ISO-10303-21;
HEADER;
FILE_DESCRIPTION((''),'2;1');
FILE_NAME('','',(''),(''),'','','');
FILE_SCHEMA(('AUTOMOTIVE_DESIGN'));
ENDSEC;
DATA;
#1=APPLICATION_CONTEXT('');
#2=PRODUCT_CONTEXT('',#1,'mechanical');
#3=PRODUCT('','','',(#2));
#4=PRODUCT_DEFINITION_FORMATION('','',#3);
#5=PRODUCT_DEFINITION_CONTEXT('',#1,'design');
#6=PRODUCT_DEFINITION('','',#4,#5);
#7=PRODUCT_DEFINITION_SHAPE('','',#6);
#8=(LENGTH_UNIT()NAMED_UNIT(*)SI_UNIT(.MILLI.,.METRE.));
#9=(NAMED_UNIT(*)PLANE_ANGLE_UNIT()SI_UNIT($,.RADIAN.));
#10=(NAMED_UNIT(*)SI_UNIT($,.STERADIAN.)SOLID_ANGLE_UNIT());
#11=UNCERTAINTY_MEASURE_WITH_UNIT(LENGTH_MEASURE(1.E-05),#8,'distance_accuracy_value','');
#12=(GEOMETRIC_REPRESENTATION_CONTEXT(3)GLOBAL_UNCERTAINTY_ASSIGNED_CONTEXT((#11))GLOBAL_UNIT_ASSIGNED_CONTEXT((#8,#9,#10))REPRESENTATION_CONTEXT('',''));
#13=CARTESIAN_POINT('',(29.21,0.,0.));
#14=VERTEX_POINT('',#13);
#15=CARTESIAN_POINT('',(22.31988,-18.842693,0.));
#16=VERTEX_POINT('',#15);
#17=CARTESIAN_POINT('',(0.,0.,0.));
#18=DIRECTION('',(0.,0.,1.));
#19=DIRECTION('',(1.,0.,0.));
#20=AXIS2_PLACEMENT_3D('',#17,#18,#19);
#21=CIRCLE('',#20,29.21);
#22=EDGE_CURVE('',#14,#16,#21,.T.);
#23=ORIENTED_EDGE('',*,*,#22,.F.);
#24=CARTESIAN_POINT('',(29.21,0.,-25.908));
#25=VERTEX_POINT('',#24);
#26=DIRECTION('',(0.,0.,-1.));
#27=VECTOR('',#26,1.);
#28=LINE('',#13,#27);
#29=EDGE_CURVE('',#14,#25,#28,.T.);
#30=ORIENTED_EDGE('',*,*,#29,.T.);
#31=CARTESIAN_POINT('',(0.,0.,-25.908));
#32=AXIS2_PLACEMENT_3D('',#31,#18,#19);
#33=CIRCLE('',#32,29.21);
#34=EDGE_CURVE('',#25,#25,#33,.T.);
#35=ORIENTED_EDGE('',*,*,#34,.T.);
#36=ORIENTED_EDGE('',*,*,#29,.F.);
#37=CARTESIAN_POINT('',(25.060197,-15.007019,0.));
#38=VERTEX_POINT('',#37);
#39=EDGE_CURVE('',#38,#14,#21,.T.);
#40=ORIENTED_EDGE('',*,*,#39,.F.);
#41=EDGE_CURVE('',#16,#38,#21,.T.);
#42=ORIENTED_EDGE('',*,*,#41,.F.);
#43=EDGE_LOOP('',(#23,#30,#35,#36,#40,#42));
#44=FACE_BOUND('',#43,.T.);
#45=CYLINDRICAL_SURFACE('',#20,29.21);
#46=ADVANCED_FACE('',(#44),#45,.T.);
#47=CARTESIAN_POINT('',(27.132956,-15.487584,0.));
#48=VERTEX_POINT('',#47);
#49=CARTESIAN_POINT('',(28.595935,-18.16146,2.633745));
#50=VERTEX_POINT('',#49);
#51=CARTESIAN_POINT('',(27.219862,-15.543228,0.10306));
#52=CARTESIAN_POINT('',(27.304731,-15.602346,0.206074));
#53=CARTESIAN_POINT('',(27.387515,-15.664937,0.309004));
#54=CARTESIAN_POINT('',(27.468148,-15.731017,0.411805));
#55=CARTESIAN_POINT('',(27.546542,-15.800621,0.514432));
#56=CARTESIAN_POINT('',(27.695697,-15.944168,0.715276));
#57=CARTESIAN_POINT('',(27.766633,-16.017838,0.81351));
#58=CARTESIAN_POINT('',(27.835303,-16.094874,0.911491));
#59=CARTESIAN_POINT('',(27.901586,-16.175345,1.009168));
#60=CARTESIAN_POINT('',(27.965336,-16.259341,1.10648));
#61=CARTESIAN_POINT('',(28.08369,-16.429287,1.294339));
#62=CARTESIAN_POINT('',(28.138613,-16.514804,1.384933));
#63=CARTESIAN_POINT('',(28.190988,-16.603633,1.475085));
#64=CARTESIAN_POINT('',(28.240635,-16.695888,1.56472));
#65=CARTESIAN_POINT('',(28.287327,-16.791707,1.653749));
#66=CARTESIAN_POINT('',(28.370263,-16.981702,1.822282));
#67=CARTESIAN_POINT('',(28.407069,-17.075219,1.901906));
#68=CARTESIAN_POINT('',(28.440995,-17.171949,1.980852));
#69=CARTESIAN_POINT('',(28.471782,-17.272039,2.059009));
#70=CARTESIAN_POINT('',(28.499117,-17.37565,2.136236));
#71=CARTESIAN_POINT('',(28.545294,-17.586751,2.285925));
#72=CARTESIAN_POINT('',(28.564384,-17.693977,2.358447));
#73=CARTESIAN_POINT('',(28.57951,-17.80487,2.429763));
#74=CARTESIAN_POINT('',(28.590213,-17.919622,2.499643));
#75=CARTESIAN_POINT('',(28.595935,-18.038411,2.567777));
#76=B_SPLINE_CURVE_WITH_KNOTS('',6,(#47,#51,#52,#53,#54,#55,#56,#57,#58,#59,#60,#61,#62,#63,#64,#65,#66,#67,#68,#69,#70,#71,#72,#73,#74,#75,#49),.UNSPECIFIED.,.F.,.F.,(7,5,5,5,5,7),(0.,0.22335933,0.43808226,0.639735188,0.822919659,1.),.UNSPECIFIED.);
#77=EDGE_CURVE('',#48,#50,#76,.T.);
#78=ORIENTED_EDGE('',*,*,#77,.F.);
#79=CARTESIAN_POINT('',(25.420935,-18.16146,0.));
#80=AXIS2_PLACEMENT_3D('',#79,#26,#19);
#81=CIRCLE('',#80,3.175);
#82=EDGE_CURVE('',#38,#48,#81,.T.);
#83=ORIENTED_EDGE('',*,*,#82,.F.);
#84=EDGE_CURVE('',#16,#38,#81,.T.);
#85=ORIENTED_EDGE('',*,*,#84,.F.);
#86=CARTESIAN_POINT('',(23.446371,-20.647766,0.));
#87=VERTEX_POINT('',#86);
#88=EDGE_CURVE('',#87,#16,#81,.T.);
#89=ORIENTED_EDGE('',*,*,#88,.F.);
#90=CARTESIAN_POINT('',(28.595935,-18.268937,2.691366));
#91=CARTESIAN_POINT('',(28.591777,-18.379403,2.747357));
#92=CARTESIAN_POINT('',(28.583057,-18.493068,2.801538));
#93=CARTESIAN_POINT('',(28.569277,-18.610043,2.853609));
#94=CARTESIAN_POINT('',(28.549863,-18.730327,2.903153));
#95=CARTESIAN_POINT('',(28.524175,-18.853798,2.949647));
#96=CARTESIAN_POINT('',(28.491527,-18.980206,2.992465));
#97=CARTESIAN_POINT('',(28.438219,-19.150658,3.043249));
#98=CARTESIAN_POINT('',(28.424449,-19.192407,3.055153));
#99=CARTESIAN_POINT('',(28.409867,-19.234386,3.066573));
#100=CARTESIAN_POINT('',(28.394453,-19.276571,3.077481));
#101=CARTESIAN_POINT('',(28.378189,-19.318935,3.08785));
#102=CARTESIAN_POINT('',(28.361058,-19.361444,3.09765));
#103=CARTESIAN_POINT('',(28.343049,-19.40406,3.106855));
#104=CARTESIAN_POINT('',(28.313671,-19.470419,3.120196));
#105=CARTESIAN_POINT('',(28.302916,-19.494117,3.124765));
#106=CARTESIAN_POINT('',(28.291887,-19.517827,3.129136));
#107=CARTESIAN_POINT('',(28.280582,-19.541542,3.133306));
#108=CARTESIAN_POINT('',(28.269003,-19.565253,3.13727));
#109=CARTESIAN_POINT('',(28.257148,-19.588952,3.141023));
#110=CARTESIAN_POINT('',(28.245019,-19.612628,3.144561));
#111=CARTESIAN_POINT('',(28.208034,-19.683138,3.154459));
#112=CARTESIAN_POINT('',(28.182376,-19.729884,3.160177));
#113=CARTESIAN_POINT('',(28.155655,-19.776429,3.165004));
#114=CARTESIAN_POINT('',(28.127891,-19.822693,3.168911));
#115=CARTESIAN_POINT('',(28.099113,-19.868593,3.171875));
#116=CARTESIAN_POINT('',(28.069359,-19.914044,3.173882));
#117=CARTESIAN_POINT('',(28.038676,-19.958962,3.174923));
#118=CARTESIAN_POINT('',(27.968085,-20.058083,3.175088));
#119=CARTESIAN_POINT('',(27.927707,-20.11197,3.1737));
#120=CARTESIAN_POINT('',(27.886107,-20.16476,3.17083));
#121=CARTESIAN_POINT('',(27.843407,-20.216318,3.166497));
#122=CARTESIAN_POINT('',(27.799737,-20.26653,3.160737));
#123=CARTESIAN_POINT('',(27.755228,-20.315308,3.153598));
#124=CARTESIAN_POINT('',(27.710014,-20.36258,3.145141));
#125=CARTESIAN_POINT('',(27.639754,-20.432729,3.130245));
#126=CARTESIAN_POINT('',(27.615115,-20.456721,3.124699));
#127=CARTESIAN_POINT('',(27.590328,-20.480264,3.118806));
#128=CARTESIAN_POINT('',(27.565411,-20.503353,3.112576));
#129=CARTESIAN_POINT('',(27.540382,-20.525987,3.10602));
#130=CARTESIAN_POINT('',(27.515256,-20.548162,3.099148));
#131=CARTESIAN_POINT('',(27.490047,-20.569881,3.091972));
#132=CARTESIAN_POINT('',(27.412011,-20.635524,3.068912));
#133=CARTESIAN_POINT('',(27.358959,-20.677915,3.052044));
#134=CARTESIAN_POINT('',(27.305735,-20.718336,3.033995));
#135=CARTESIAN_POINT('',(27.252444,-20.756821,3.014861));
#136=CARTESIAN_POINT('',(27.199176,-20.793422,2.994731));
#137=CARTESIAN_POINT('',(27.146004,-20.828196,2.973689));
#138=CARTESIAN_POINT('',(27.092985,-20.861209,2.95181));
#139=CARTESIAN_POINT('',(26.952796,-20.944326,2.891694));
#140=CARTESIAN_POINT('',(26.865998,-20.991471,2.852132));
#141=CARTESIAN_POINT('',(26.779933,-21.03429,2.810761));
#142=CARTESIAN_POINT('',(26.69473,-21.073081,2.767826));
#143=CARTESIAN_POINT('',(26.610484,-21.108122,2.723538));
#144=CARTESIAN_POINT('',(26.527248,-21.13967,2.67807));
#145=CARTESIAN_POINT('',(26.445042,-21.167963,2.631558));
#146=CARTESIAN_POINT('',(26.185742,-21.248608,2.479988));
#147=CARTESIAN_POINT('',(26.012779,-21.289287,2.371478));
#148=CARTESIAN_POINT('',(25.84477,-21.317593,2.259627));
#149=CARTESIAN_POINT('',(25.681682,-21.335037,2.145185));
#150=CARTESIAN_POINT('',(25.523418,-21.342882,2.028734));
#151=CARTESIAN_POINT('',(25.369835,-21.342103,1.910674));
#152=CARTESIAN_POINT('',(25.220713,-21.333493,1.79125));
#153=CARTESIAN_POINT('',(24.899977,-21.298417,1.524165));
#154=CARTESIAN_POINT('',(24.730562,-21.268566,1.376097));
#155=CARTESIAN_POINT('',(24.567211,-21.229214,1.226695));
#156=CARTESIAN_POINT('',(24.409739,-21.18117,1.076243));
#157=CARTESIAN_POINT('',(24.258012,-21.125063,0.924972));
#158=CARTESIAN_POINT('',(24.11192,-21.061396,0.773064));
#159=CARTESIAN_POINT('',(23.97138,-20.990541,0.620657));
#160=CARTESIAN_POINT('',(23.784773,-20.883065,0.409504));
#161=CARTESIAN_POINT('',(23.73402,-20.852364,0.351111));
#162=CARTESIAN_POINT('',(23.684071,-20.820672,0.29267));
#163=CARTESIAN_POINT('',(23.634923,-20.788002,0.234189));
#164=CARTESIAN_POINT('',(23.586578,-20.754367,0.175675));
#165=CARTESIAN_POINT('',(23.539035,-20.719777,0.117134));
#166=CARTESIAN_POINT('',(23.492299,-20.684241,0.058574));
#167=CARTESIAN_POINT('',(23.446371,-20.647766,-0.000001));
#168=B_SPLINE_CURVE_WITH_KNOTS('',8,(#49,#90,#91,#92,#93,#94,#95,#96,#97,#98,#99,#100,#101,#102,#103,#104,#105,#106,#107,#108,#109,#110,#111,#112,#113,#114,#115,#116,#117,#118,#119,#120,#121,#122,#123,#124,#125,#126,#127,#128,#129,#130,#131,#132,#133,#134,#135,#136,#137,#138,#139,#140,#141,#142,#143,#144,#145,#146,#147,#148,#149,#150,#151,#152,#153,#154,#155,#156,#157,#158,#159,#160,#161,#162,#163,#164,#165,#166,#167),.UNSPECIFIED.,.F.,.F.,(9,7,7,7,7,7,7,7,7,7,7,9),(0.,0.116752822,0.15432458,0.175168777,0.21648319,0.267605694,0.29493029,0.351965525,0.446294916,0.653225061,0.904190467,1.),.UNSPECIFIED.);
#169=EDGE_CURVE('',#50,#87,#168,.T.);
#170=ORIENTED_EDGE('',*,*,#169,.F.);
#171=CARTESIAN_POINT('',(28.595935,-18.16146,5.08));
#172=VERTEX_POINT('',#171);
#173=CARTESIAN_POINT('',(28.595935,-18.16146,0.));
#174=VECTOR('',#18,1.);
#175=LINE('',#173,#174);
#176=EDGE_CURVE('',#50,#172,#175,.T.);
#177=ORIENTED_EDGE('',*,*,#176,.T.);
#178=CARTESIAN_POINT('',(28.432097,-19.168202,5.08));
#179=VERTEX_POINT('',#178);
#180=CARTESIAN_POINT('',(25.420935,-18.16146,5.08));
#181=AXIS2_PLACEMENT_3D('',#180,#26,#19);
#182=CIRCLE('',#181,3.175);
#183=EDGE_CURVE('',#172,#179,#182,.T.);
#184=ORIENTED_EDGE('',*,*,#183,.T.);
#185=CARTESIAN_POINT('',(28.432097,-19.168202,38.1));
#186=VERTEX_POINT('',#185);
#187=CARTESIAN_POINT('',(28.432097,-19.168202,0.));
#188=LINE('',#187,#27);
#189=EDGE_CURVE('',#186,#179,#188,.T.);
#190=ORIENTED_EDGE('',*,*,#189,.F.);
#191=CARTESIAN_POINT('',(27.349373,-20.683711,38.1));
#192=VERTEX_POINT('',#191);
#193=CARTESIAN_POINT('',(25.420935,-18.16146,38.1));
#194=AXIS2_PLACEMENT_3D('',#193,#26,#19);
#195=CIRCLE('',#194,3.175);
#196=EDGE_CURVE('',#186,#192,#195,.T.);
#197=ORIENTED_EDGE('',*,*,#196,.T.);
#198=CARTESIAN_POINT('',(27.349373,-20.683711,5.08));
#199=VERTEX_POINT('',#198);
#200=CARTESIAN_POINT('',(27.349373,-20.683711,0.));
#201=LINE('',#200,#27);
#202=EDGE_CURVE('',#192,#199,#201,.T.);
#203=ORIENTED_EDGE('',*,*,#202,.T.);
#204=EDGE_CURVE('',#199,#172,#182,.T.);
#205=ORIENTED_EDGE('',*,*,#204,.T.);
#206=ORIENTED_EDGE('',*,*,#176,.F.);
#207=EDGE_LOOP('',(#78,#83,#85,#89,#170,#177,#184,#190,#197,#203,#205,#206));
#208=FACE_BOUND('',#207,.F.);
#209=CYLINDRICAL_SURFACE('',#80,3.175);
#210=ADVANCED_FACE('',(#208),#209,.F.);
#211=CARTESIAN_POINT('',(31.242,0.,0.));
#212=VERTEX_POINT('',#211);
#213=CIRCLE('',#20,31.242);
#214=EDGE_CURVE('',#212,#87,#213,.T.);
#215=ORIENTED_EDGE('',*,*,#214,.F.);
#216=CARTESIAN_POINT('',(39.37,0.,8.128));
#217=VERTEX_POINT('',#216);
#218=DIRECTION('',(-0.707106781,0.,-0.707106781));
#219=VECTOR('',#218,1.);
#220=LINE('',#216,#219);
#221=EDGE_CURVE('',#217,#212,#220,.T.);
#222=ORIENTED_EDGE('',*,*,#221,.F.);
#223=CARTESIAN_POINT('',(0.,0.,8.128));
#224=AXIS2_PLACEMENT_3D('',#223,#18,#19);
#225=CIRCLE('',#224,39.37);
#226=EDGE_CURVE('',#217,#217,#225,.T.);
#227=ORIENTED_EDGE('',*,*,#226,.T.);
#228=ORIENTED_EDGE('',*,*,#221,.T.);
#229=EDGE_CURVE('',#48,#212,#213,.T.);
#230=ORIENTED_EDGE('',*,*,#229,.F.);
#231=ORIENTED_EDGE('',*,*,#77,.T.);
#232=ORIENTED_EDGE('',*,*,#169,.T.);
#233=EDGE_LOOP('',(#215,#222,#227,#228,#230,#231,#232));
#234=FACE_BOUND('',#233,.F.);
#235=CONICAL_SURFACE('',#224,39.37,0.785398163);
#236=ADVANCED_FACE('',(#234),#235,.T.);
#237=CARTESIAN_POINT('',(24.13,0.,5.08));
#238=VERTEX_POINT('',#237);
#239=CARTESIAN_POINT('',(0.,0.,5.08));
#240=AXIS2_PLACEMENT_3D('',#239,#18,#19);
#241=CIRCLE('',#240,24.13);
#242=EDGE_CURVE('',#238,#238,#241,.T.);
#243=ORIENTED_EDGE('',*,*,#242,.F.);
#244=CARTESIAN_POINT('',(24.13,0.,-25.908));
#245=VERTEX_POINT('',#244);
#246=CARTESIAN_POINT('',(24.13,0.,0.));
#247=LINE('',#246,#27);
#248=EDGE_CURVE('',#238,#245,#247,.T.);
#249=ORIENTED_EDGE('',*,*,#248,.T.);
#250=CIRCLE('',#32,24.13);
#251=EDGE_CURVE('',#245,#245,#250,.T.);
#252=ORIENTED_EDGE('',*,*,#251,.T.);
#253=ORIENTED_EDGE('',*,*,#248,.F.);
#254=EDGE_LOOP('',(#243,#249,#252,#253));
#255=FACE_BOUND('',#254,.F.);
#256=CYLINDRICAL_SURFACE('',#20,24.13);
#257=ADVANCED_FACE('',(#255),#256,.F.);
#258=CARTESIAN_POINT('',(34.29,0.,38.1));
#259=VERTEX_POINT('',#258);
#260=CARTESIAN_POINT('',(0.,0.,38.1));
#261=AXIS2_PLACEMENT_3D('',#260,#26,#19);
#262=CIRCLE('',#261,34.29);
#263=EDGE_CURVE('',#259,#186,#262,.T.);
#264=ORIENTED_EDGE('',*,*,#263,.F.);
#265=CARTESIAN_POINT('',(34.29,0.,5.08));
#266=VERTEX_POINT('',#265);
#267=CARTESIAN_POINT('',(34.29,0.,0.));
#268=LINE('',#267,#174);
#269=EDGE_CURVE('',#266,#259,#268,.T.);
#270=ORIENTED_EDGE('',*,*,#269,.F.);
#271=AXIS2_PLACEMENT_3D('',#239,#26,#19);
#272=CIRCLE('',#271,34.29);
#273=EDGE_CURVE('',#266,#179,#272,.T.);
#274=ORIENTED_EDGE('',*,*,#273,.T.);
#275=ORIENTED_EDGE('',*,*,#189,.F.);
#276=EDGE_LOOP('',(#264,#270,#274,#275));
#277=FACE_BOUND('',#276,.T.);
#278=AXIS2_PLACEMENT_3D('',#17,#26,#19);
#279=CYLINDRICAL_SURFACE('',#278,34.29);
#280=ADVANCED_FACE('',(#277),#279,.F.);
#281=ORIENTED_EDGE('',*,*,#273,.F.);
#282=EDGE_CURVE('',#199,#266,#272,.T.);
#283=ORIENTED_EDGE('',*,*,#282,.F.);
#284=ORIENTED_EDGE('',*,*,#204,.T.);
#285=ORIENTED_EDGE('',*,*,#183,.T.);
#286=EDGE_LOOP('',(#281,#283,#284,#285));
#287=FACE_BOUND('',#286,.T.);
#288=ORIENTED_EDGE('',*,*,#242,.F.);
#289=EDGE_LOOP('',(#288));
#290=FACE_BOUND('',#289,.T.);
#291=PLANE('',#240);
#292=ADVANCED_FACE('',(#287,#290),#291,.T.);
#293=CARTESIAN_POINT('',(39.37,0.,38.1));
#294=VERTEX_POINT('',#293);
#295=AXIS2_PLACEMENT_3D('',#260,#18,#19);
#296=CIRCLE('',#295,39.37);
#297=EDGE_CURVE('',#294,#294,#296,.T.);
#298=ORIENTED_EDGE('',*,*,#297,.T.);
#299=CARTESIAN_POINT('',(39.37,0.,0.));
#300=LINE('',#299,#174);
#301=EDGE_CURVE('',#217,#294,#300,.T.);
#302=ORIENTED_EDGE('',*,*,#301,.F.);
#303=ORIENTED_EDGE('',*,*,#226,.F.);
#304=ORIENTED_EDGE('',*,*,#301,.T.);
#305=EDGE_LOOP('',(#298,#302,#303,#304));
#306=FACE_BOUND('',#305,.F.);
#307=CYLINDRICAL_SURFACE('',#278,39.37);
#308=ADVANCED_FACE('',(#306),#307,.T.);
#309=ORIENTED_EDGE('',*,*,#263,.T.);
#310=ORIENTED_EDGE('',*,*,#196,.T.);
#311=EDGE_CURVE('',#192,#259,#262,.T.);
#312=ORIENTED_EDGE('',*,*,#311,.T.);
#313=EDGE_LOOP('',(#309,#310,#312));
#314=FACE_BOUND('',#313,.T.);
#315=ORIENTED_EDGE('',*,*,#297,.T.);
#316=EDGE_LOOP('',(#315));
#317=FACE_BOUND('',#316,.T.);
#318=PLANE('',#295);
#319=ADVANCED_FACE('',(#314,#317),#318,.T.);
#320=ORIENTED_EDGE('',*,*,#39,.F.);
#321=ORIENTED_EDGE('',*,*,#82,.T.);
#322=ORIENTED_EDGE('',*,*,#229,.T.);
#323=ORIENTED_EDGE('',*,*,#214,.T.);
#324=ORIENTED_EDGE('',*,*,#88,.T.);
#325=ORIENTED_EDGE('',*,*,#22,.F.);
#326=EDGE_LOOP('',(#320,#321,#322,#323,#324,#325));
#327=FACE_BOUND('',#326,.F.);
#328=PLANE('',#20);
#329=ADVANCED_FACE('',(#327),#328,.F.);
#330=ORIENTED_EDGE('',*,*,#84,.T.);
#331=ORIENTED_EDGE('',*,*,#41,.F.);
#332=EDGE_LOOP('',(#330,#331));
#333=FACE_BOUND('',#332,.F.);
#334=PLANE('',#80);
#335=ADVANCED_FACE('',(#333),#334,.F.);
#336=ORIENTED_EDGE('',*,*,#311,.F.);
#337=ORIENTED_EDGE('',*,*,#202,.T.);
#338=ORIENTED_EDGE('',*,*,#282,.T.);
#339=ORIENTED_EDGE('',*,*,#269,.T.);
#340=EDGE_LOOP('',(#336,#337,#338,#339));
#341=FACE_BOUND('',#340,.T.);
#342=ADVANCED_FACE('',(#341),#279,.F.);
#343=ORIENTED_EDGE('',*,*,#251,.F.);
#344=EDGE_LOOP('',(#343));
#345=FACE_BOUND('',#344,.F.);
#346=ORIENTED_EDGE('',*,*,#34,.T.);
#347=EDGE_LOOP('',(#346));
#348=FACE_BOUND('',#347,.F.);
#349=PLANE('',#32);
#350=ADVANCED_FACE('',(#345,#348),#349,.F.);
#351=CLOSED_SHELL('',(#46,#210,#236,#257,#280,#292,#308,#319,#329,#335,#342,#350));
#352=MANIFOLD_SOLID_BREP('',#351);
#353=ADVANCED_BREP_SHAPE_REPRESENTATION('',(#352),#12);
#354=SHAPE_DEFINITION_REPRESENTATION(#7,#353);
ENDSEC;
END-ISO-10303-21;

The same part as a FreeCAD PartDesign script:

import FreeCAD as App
import Part
import Sketcher
Q = App.Units.Quantity


def edges_at(feature, points):
    """Names of the edges that pass closest to the given points."""
    edges = feature.Shape.Edges
    near = lambda p: min(range(len(edges)), key=lambda i: edges[i].distToShape(Part.Vertex(*p))[0])
    return sorted({f"Edge{near(p) + 1}" for p in points})


def faces_at(feature, points):
    """Names of the faces that lie closest to the given points."""
    faces = feature.Shape.Faces
    near = lambda p: min(range(len(faces)), key=lambda i: faces[i].distToShape(Part.Vertex(*p))[0])
    return sorted({f"Face{near(p) + 1}" for p in points})

doc = App.newDocument("Part")
params = doc.addObject("Spreadsheet::Sheet", "Params")
for row, (alias, value) in enumerate([
    ("sketch1_diameter", "2.3 in"),
    ("pad1_length", "1.02 in"),
    ("sketch2_diameter", "3.1 in"),
    ("pad2_length", "1.5 in"),
    ("thickness_wall", "0.2 in"),
    ("chamfer_size", "0.32 in"),
    ("sketch3_diameter", "0.25 in"),
], start=1):
    params.set(f"A{row}", alias)
    params.set(f"B{row}", "=" + value)
    params.setAlias(f"B{row}", alias)

body = doc.addObject("PartDesign::Body", "Body")

# Sketch on XY plane
sketch1 = body.newObject("Sketcher::SketchObject", "Sketch")
sketch1.AttachmentSupport = (doc.getObject("XY_Plane"), [""])
sketch1.MapMode = "FlatFace"
sketch1.addGeometry(Part.Circle(App.Vector(0, 0, 0), App.Vector(0, 0, 1), 29.21), False)
sketch1.addConstraint([
    Sketcher.Constraint("Coincident", 0, 3, -1, 1),
    Sketcher.Constraint("Diameter", 0, Q("2.3 in")),
])
sketch1.setExpression("Constraints[1]", "Params.sketch1_diameter")
pad1 = body.newObject("PartDesign::Pad", "Pad")
pad1.Profile = sketch1
pad1.setExpression("Length", "Params.pad1_length")
pad1.Reversed = True

# Sketch on XY plane
sketch2 = body.newObject("Sketcher::SketchObject", "Sketch001")
sketch2.AttachmentSupport = (doc.getObject("XY_Plane"), [""])
sketch2.MapMode = "FlatFace"
sketch2.addGeometry(Part.Circle(App.Vector(0, 0, 0), App.Vector(0, 0, 1), 39.37), False)
sketch2.addConstraint([
    Sketcher.Constraint("Coincident", 0, 3, -1, 1),
    Sketcher.Constraint("Diameter", 0, Q("3.1 in")),
])
sketch2.setExpression("Constraints[1]", "Params.sketch2_diameter")
pad2 = body.newObject("PartDesign::Pad", "Pad001")
pad2.Profile = sketch2
pad2.setExpression("Length", "Params.pad2_length")
doc.recompute()

thickness = body.newObject("PartDesign::Thickness", "Thickness")
thickness.Base = (pad2, faces_at(pad2, [(0, 0, 38.1), (0, 0, -25.908)]))
thickness.setExpression("Value", "Params.thickness_wall")
thickness.Reversed = True
thickness.Join = "Intersection"
doc.recompute()

chamfer = body.newObject("PartDesign::Chamfer", "Chamfer")
chamfer.Base = (thickness, edges_at(thickness, [(-39.37, 0, 0)]))
chamfer.setExpression("Size", "Params.chamfer_size")

# Sketch on XY plane
sketch3 = body.newObject("Sketcher::SketchObject", "Sketch002")
sketch3.AttachmentSupport = (doc.getObject("XY_Plane"), [""])
sketch3.MapMode = "FlatFace"
sketch3.addGeometry(Part.Circle(App.Vector(25.420935, -18.16146, 0), App.Vector(0, 0, 1), 3.175), False)
sketch3.addConstraint([
    Sketcher.Constraint("Diameter", 0, Q("0.25 in")),
    Sketcher.Constraint("DistanceY", 0, 3, -1, 1, 18.16146),
    Sketcher.Constraint("DistanceX", -1, 1, 0, 3, 25.420935),
])
sketch3.setExpression("Constraints[0]", "Params.sketch3_diameter")
pocket1 = body.newObject("PartDesign::Pocket", "Pocket")
pocket1.Profile = sketch3
pocket1.Type = "ThroughAll"
pocket1.Reversed = True

doc.recompute()
